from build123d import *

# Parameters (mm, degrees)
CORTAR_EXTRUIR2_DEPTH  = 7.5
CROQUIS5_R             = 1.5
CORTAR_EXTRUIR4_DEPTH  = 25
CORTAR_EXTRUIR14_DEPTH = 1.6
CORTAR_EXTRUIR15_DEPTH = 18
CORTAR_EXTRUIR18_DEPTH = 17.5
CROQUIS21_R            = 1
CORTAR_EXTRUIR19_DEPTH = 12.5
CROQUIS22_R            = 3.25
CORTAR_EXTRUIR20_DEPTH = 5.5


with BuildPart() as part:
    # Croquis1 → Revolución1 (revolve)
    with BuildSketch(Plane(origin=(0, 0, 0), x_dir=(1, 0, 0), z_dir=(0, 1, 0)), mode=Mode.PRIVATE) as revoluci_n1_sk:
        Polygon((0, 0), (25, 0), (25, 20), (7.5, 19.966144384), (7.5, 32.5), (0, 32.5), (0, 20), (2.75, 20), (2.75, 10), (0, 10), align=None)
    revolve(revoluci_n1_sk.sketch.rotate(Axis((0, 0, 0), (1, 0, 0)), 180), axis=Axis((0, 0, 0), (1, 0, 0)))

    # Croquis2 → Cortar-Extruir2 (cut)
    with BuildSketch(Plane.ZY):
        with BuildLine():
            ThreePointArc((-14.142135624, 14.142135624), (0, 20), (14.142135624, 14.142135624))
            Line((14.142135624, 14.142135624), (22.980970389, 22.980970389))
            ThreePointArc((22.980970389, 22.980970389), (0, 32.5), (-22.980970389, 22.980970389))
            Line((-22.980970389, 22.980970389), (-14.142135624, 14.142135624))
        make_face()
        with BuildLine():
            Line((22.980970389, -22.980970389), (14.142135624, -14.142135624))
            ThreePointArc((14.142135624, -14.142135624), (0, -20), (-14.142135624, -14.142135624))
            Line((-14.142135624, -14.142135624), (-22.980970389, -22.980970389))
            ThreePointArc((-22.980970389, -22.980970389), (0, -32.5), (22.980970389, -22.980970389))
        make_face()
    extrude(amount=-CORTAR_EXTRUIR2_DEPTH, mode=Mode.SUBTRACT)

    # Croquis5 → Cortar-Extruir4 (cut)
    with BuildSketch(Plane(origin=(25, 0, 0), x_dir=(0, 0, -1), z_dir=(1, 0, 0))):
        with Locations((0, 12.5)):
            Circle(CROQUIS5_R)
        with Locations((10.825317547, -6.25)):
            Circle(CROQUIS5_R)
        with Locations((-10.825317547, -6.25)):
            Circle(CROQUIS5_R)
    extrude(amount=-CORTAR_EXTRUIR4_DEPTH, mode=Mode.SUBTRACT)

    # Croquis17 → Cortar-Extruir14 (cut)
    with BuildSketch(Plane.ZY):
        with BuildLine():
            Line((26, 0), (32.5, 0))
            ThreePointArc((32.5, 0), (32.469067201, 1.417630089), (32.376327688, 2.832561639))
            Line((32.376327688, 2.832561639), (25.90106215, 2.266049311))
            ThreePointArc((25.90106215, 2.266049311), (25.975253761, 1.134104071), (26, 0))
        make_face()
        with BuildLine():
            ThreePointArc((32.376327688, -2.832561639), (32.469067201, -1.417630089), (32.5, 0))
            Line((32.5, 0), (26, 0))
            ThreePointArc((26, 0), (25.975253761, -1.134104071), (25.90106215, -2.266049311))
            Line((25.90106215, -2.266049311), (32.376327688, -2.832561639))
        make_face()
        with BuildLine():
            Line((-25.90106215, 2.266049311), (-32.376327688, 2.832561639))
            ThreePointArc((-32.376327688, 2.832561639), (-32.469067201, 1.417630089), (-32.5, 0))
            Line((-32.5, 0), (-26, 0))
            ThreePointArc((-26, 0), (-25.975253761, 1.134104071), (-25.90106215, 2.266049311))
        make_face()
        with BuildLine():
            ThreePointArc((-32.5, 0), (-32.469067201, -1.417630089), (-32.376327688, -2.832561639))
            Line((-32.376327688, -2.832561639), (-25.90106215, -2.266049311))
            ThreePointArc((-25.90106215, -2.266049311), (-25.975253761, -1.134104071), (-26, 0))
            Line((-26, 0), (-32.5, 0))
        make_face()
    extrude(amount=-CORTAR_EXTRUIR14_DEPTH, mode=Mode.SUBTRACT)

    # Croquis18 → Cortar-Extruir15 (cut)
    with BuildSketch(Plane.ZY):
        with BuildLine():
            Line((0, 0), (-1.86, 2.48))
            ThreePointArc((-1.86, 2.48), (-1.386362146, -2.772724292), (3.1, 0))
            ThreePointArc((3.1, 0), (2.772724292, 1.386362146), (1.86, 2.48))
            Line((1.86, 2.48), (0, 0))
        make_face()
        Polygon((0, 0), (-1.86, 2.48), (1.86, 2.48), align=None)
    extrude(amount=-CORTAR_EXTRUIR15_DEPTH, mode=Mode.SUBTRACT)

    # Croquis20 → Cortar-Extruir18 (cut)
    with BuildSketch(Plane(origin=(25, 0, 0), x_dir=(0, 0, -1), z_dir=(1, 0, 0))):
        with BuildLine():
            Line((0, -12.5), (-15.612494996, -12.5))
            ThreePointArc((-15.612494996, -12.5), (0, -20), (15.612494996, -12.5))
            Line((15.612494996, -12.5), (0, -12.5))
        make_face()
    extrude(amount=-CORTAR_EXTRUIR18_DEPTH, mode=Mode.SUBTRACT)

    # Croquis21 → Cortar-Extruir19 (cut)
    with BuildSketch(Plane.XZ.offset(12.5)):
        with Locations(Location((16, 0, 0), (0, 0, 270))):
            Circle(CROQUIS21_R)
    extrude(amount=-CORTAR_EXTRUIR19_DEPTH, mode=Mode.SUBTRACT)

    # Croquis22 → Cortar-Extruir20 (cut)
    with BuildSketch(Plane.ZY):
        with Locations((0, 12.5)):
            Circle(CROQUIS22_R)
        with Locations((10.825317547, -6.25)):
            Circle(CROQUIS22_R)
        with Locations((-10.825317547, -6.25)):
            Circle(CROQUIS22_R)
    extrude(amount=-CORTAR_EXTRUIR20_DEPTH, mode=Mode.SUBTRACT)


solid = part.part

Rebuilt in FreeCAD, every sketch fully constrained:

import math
import FreeCAD as App
import Part
import Sketcher
from FreeCAD import Vector
Q = App.Units.Quantity

doc = App.newDocument("Part")
params = doc.addObject("Spreadsheet::Sheet", "Params")
for row, (alias, value) in enumerate([
    ("sketch1_width", "25 mm"),
    ("sketch1_height", "20 mm"),
    ("sketch1_width2", "7.5 mm"),
    ("sketch1_height2", "12.5 mm"),
    ("sketch1_width3", "2.75 mm"),
    ("revolution_angle", "360 deg"),
    ("sketch2_radius", "20 mm"),
    ("sketch2_radius2", "32.5 mm"),
    ("pocket1_length", "7.5 mm"),
    ("sketch3_diameter", "3 mm"),
    ("pocket2_length", "25 mm"),
    ("sketch4_radius", "26 mm"),
    ("sketch4_radius2", "32.5 mm"),
    ("pocket3_length", "1.6 mm"),
    ("sketch5_radius", "3.1 mm"),
    ("sketch5_height", "3.72 mm"),
    ("pocket4_length", "18 mm"),
    ("sketch6_radius", "20 mm"),
    ("pocket5_length", "17.5 mm"),
    ("sketch7_diameter", "2 mm"),
    ("pocket6_length", "12.5 mm"),
    ("sketch8_diameter", "6.5 mm"),
    ("pocket7_length", "5.5 mm"),
], start=1):
    params.set(f"A{row}", alias)
    params.set(f"B{row}", "=" + value)
    params.setAlias(f"B{row}", alias)

body = doc.addObject("PartDesign::Body", "Body")

# Sketch on XZ plane
sketch1 = doc.addObject("Sketcher::SketchObject", "Sketch")
body.addObject(sketch1)
sketch1.AttachmentSupport = (doc.XZ_Plane, [""])
sketch1.MapMode = "FlatFace"
sketch1.addGeometry(Part.LineSegment(Vector(0, 0, 0), Vector(25, 0, 0)), False)
sketch1.addGeometry(Part.LineSegment(Vector(25, 0, 0), Vector(25, -20, 0)), False)
sketch1.addGeometry(Part.LineSegment(Vector(25, -20, 0), Vector(7.5, -19.966144, 0)), False)
sketch1.addGeometry(Part.LineSegment(Vector(7.5, -19.966144, 0), Vector(7.5, -32.5, 0)), False)
sketch1.addGeometry(Part.LineSegment(Vector(7.5, -32.5, 0), Vector(0, -32.5, 0)), False)
sketch1.addGeometry(Part.LineSegment(Vector(0, -32.5, 0), Vector(0, -20, 0)), False)
sketch1.addGeometry(Part.LineSegment(Vector(0, -20, 0), Vector(2.75, -20, 0)), False)
sketch1.addGeometry(Part.LineSegment(Vector(2.75, -20, 0), Vector(2.75, -10, 0)), False)
sketch1.addGeometry(Part.LineSegment(Vector(2.75, -10, 0), Vector(0, -10, 0)), False)
sketch1.addGeometry(Part.LineSegment(Vector(0, -10, 0), Vector(0, 0, 0)), False)
sketch1.addConstraint(Sketcher.Constraint("Coincident", 0, 2, 1, 1))
sketch1.addConstraint(Sketcher.Constraint("Coincident", 1, 2, 2, 1))
sketch1.addConstraint(Sketcher.Constraint("Coincident", 2, 2, 3, 1))
sketch1.addConstraint(Sketcher.Constraint("Coincident", 3, 2, 4, 1))
sketch1.addConstraint(Sketcher.Constraint("Coincident", 4, 2, 5, 1))
sketch1.addConstraint(Sketcher.Constraint("Coincident", 5, 2, 6, 1))
sketch1.addConstraint(Sketcher.Constraint("Coincident", 6, 2, 7, 1))
sketch1.addConstraint(Sketcher.Constraint("Coincident", 7, 2, 8, 1))
sketch1.addConstraint(Sketcher.Constraint("Coincident", 8, 2, 9, 1))
sketch1.addConstraint(Sketcher.Constraint("Coincident", 9, 2, 0, 1))
sketch1.addConstraint(Sketcher.Constraint("Horizontal", 0))
sketch1.addConstraint(Sketcher.Constraint("Vertical", 1))
sketch1.addConstraint(Sketcher.Constraint("Vertical", 3))
sketch1.addConstraint(Sketcher.Constraint("Horizontal", 4))
sketch1.addConstraint(Sketcher.Constraint("Vertical", 5))
sketch1.addConstraint(Sketcher.Constraint("Horizontal", 6))
sketch1.addConstraint(Sketcher.Constraint("Vertical", 7))
sketch1.addConstraint(Sketcher.Constraint("Horizontal", 8))
sketch1.addConstraint(Sketcher.Constraint("Vertical", 9))
sketch1.addConstraint(Sketcher.Constraint("Coincident", 9, 2, -1, 1))
sketch1.addConstraint(Sketcher.Constraint("PointOnObject", 4, 2, -2))
sketch1.addConstraint(Sketcher.Constraint("Horizontal", 1, 2, 5, 2))
sketch1.addConstraint(Sketcher.Constraint("Equal", 7, 9))
sketch1.addConstraint(Sketcher.Constraint("DistanceX", 0, 1, 0, 2, Q("25 mm")))
sketch1.addConstraint(Sketcher.Constraint("DistanceY", 1, 2, 1, 1, Q("20 mm")))
sketch1.addConstraint(Sketcher.Constraint("DistanceX", 4, 2, 4, 1, Q("7.5 mm")))
sketch1.addConstraint(Sketcher.Constraint("DistanceY", 5, 1, 5, 2, Q("12.5 mm")))
sketch1.addConstraint(Sketcher.Constraint("DistanceX", 6, 1, 6, 2, Q("2.75 mm")))
sketch1.addConstraint(Sketcher.Constraint("DistanceY", 3, 2, 3, 1, Q("12.533856 mm")))
sketch1.setExpression("Constraints[23]", "Params.sketch1_width")
sketch1.setExpression("Constraints[24]", "Params.sketch1_height")
sketch1.setExpression("Constraints[25]", "Params.sketch1_width2")
sketch1.setExpression("Constraints[26]", "Params.sketch1_height2")
sketch1.setExpression("Constraints[27]", "Params.sketch1_width3")
revolution = doc.addObject("PartDesign::Revolution", "Revolution")
body.addObject(revolution)
revolution.Profile = sketch1
revolution.ReferenceAxis = (sketch1, ["H_Axis"])
revolution.setExpression("Angle", "Params.revolution_angle")

# Sketch on YZ plane
sketch2 = doc.addObject("Sketcher::SketchObject", "Sketch001")
body.addObject(sketch2)
sketch2.AttachmentSupport = (doc.YZ_Plane, [""])
sketch2.MapMode = "FlatFace"
sketch2.addGeometry(Part.ArcOfCircle(Part.Circle(Vector(0, 0, 0), Vector(0, 0, 1), 20), math.radians(-45), math.radians(45)), False)
sketch2.addGeometry(Part.LineSegment(Vector(14.142136, 14.142136, 0), Vector(22.98097, 22.98097, 0)), False)
sketch2.addGeometry(Part.ArcOfCircle(Part.Circle(Vector(0, 0, 0), Vector(0, 0, 1), 32.5), math.radians(-45), math.radians(45)), False)
sketch2.addGeometry(Part.LineSegment(Vector(22.98097, -22.98097, 0), Vector(14.142136, -14.142136, 0)), False)
sketch2.addGeometry(Part.LineSegment(Vector(-22.98097, 22.98097, 0), Vector(-14.142136, 14.142136, 0)), False)
sketch2.addGeometry(Part.ArcOfCircle(Part.Circle(Vector(0, 0, 0), Vector(0, 0, 1), 20), math.radians(135), math.radians(225)), False)
sketch2.addGeometry(Part.LineSegment(Vector(-14.142136, -14.142136, 0), Vector(-22.98097, -22.98097, 0)), False)
sketch2.addGeometry(Part.ArcOfCircle(Part.Circle(Vector(0, 0, 0), Vector(0, 0, 1), 32.5), math.radians(135), math.radians(225)), False)
sketch2.addConstraint(Sketcher.Constraint("Coincident", 0, 2, 1, 1))
sketch2.addConstraint(Sketcher.Constraint("Coincident", 1, 2, 2, 2))
sketch2.addConstraint(Sketcher.Constraint("Coincident", 2, 1, 3, 1))
sketch2.addConstraint(Sketcher.Constraint("Coincident", 3, 2, 0, 1))
sketch2.addConstraint(Sketcher.Constraint("Coincident", 4, 2, 5, 1))
sketch2.addConstraint(Sketcher.Constraint("Coincident", 5, 2, 6, 1))
sketch2.addConstraint(Sketcher.Constraint("Coincident", 6, 2, 7, 2))
sketch2.addConstraint(Sketcher.Constraint("Coincident", 7, 1, 4, 1))
sketch2.addConstraint(Sketcher.Constraint("Coincident", 0, 3, -1, 1))
sketch2.addConstraint(Sketcher.Constraint("Coincident", 2, 3, -1, 1))
sketch2.addConstraint(Sketcher.Constraint("Coincident", 5, 3, -1, 1))
sketch2.addConstraint(Sketcher.Constraint("Coincident", 7, 3, -1, 1))
sketch2.addConstraint(Sketcher.Constraint("Equal", 0, 5))
sketch2.addConstraint(Sketcher.Constraint("Equal", 2, 7))
sketch2.addConstraint(Sketcher.Constraint("Perpendicular", 1, 3))
sketch2.addConstraint(Sketcher.Constraint("Parallel", 3, 4))
sketch2.addConstraint(Sketcher.Constraint("Perpendicular", 4, 6))
sketch2.addConstraint(Sketcher.Constraint("Horizontal", 0, 2, 4, 2))
sketch2.addConstraint(Sketcher.Constraint("Horizontal", 3, 2, 5, 2))
sketch2.addConstraint(Sketcher.Constraint("Horizontal", 2, 1, 6, 2))
sketch2.addConstraint(Sketcher.Constraint("Vertical", 1, 2, 2, 1))
sketch2.addConstraint(Sketcher.Constraint("Radius", 0, Q("20 mm")))
sketch2.addConstraint(Sketcher.Constraint("Radius", 2, Q("32.5 mm")))
sketch2.addConstraint(Sketcher.Constraint("DistanceX", -1, 1, 1, 2, Q("22.98097 mm")))
sketch2.setExpression("Constraints[21]", "Params.sketch2_radius")
sketch2.setExpression("Constraints[22]", "Params.sketch2_radius2")
pocket1 = doc.addObject("PartDesign::Pocket", "Pocket")
body.addObject(pocket1)
pocket1.Profile = sketch2
pocket1.setExpression("Length", "Params.pocket1_length")
pocket1.Reversed = True

# Sketch on YZ plane
sketch3 = doc.addObject("Sketcher::SketchObject", "Sketch002")
body.addObject(sketch3)
sketch3.AttachmentSupport = (doc.YZ_Plane, [""])
sketch3.MapMode = "FlatFace"
sketch3.AttachmentOffset = App.Placement(Vector(0, 0, 25), App.Rotation())
sketch3.addGeometry(Part.Circle(Vector(12.5, 0, 0), Vector(0, 0, 1), 1.5), False)
sketch3.addGeometry(Part.Circle(Vector(-6.25, -10.825318, 0), Vector(0, 0, 1), 1.5), False)
sketch3.addGeometry(Part.Circle(Vector(-6.25, 10.825318, 0), Vector(0, 0, 1), 1.5), False)
sketch3.addConstraint(Sketcher.Constraint("Equal", 0, 1))
sketch3.addConstraint(Sketcher.Constraint("Equal", 1, 2))
sketch3.addConstraint(Sketcher.Constraint("Symmetric", 1, 3, 2, 3, -1))
sketch3.addConstraint(Sketcher.Constraint("PointOnObject", 0, 3, -1))
sketch3.addConstraint(Sketcher.Constraint("Diameter", 0, Q("3 mm")))
sketch3.addConstraint(Sketcher.Constraint("DistanceX", -1, 1, 0, 3, Q("12.5 mm")))
sketch3.addConstraint(Sketcher.Constraint("DistanceX", 1, 3, -1, 1, Q("6.25 mm")))
sketch3.addConstraint(Sketcher.Constraint("DistanceY", 1, 3, -1, 1, Q("10.825318 mm")))
sketch3.setExpression("Constraints[4]", "Params.sketch3_diameter")
pocket2 = doc.addObject("PartDesign::Pocket", "Pocket001")
body.addObject(pocket2)
pocket2.Profile = sketch3
pocket2.setExpression("Length", "Params.pocket2_length")

# Sketch on YZ plane
sketch4 = doc.addObject("Sketcher::SketchObject", "Sketch003")
body.addObject(sketch4)
sketch4.AttachmentSupport = (doc.YZ_Plane, [""])
sketch4.MapMode = "FlatFace"
sketch4.addGeometry(Part.ArcOfCircle(Part.Circle(Vector(0, 0, 0), Vector(0, 0, 1), 32.5), math.radians(85), math.radians(90)), False)
sketch4.addGeometry(Part.LineSegment(Vector(2.832562, 32.376328, 0), Vector(2.266049, 25.901062, 0)), False)
sketch4.addGeometry(Part.ArcOfCircle(Part.Circle(Vector(0, 0, 0), Vector(0, 0, 1), 26), math.radians(85), math.radians(90)), False)
sketch4.addGeometry(Part.ArcOfCircle(Part.Circle(Vector(0, 0, 0), Vector(0, 0, 1), 26), math.radians(90), math.radians(95)), False)
sketch4.addGeometry(Part.LineSegment(Vector(-2.266049, 25.901062, 0), Vector(-2.832562, 32.376328, 0)), False)
sketch4.addGeometry(Part.ArcOfCircle(Part.Circle(Vector(0, 0, 0), Vector(0, 0, 1), 32.5), math.radians(90), math.radians(95)), False)
sketch4.addGeometry(Part.LineSegment(Vector(2.266049, -25.901062, 0), Vector(2.832562, -32.376328, 0)), False)
sketch4.addGeometry(Part.ArcOfCircle(Part.Circle(Vector(0, 0, 0), Vector(0, 0, 1), 32.5), math.radians(-90), math.radians(-85)), False)
sketch4.addGeometry(Part.ArcOfCircle(Part.Circle(Vector(0, 0, 0), Vector(0, 0, 1), 32.5), math.radians(-95), math.radians(-90)), False)
sketch4.addGeometry(Part.LineSegment(Vector(-2.832562, -32.376328, 0), Vector(-2.266049, -25.901062, 0)), False)
sketch4.addGeometry(Part.ArcOfCircle(Part.Circle(Vector(0, 0, 0), Vector(0, 0, 1), 26), math.radians(-95), math.radians(-90)), False)
sketch4.addGeometry(Part.ArcOfCircle(Part.Circle(Vector(0, 0, 0), Vector(0, 0, 1), 26), math.radians(-90), math.radians(-85)), False)
sketch4.addConstraint(Sketcher.Constraint("Coincident", 0, 1, 1, 1))
sketch4.addConstraint(Sketcher.Constraint("Coincident", 1, 2, 2, 1))
sketch4.addConstraint(Sketcher.Constraint("Tangent", 2, 2, 3, 1))
sketch4.addConstraint(Sketcher.Constraint("Coincident", 3, 2, 4, 1))
sketch4.addConstraint(Sketcher.Constraint("Coincident", 4, 2, 5, 2))
sketch4.addConstraint(Sketcher.Constraint("Tangent", 5, 1, 0, 2))
sketch4.addConstraint(Sketcher.Constraint("Coincident", 6, 2, 7, 2))
sketch4.addConstraint(Sketcher.Constraint("Tangent", 7, 1, 8, 2))
sketch4.addConstraint(Sketcher.Constraint("Coincident", 8, 1, 9, 1))
sketch4.addConstraint(Sketcher.Constraint("Coincident", 9, 2, 10, 1))
sketch4.addConstraint(Sketcher.Constraint("Tangent", 10, 2, 11, 1))
sketch4.addConstraint(Sketcher.Constraint("Coincident", 11, 2, 6, 1))
sketch4.addConstraint(Sketcher.Constraint("Coincident", 0, 3, -1, 1))
sketch4.addConstraint(Sketcher.Constraint("Coincident", 2, 3, -1, 1))
sketch4.addConstraint(Sketcher.Constraint("Coincident", 7, 3, -1, 1))
sketch4.addConstraint(Sketcher.Constraint("Coincident", 10, 3, -1, 1))
sketch4.addConstraint(Sketcher.Constraint("Equal", 2, 3))
sketch4.addConstraint(Sketcher.Constraint("Equal", 0, 5))
sketch4.addConstraint(Sketcher.Constraint("Equal", 5, 7))
sketch4.addConstraint(Sketcher.Constraint("Equal", 7, 8))
sketch4.addConstraint(Sketcher.Constraint("Equal", 3, 10))
sketch4.addConstraint(Sketcher.Constraint("Equal", 10, 11))
sketch4.addConstraint(Sketcher.Constraint("PointOnObject", 2, 2, -2))
sketch4.addConstraint(Sketcher.Constraint("PointOnObject", 5, 1, -2))
sketch4.addConstraint(Sketcher.Constraint("PointOnObject", 7, 1, -2))
sketch4.addConstraint(Sketcher.Constraint("PointOnObject", 10, 2, -2))
sketch4.addConstraint(Sketcher.Constraint("Parallel", 4, 6))
sketch4.addConstraint(Sketcher.Constraint("Parallel", 1, 9))
sketch4.addConstraint(Sketcher.Constraint("Horizontal", 1, 2, 3, 2))
sketch4.addConstraint(Sketcher.Constraint("Horizontal", 0, 1, 4, 2))
sketch4.addConstraint(Sketcher.Constraint("Horizontal", 6, 2, 8, 1))
sketch4.addConstraint(Sketcher.Constraint("Vertical", 0, 1, 6, 2))
sketch4.addConstraint(Sketcher.Constraint("Radius", 2, Q("26 mm")))
sketch4.addConstraint(Sketcher.Constraint("Radius", 0, Q("32.5 mm")))
sketch4.addConstraint(Sketcher.Constraint("Angle", 1, Q("-95 deg")))
sketch4.addConstraint(Sketcher.Constraint("DistanceX", 3, 2, 1, 2, Q("4.532099 mm")))
sketch4.setExpression("Constraints[32]", "Params.sketch4_radius")
sketch4.setExpression("Constraints[33]", "Params.sketch4_radius2")
pocket3 = doc.addObject("PartDesign::Pocket", "Pocket002")
body.addObject(pocket3)
pocket3.Profile = sketch4
pocket3.setExpression("Length", "Params.pocket3_length")
pocket3.Reversed = True

# Sketch on YZ plane
sketch5 = doc.addObject("Sketcher::SketchObject", "Sketch004")
body.addObject(sketch5)
sketch5.AttachmentSupport = (doc.YZ_Plane, [""])
sketch5.MapMode = "FlatFace"
sketch5.addGeometry(Part.ArcOfCircle(Part.Circle(Vector(0, 0, 0), Vector(0, 0, 1), 3.1), math.radians(90), math.radians(323.130102)), False)
sketch5.addGeometry(Part.ArcOfCircle(Part.Circle(Vector(0, 0, 0), Vector(0, 0, 1), 3.1), math.radians(36.869898), math.radians(90)), False)
sketch5.addGeometry(Part.LineSegment(Vector(2.48, 1.86, 0), Vector(2.48, -1.86, 0)), False)
sketch5.addConstraint(Sketcher.Constraint("Tangent", 0, 1, 1, 2))
sketch5.addConstraint(Sketcher.Constraint("Coincident", 1, 1, 2, 1))
sketch5.addConstraint(Sketcher.Constraint("Coincident", 2, 2, 0, 2))
sketch5.addConstraint(Sketcher.Constraint("Vertical", 2))
sketch5.addConstraint(Sketcher.Constraint("Coincident", 0, 3, -1, 1))
sketch5.addConstraint(Sketcher.Constraint("Equal", 0, 1))
sketch5.addConstraint(Sketcher.Constraint("PointOnObject", 0, 1, -2))
sketch5.addConstraint(Sketcher.Constraint("Radius", 0, Q("3.1 mm")))
sketch5.addConstraint(Sketcher.Constraint("DistanceY", 2, 2, 2, 1, Q("3.72 mm")))
sketch5.setExpression("Constraints[7]", "Params.sketch5_radius")
sketch5.setExpression("Constraints[8]", "Params.sketch5_height")
pocket4 = doc.addObject("PartDesign::Pocket", "Pocket003")
body.addObject(pocket4)
pocket4.Profile = sketch5
pocket4.setExpression("Length", "Params.pocket4_length")
pocket4.Reversed = True

# Sketch on YZ plane
sketch6 = doc.addObject("Sketcher::SketchObject", "Sketch005")
body.addObject(sketch6)
sketch6.AttachmentSupport = (doc.YZ_Plane, [""])
sketch6.MapMode = "FlatFace"
sketch6.AttachmentOffset = App.Placement(Vector(0, 0, 25), App.Rotation())
sketch6.addGeometry(Part.ArcOfCircle(Part.Circle(Vector(0, 0, 0), Vector(0, 0, 1), 20), math.radians(128.682187), math.radians(231.317813)), False)
sketch6.addGeometry(Part.LineSegment(Vector(-12.5, -15.612495, 0), Vector(-12.5, 15.612495, 0)), False)
sketch6.addConstraint(Sketcher.Constraint("Coincident", 0, 1, 1, 2))
sketch6.addConstraint(Sketcher.Constraint("Coincident", 1, 1, 0, 2))
sketch6.addConstraint(Sketcher.Constraint("Vertical", 1))
sketch6.addConstraint(Sketcher.Constraint("Coincident", 0, 3, -1, 1))
sketch6.addConstraint(Sketcher.Constraint("Radius", 0, Q("20 mm")))
sketch6.addConstraint(Sketcher.Constraint("DistanceX", 0, 1, -1, 1, Q("12.5 mm")))
sketch6.setExpression("Constraints[4]", "Params.sketch6_radius")
pocket5 = doc.addObject("PartDesign::Pocket", "Pocket004")
body.addObject(pocket5)
pocket5.Profile = sketch6
pocket5.setExpression("Length", "Params.pocket5_length")

# Sketch on XZ plane
sketch7 = doc.addObject("Sketcher::SketchObject", "Sketch006")
body.addObject(sketch7)
sketch7.AttachmentSupport = (doc.XZ_Plane, [""])
sketch7.MapMode = "FlatFace"
sketch7.AttachmentOffset = App.Placement(Vector(0, 0, 12.5), App.Rotation())
sketch7.addGeometry(Part.Circle(Vector(16, 0, 0), Vector(0, 0, 1), 1), False)
sketch7.addConstraint(Sketcher.Constraint("PointOnObject", 0, 3, -1))
sketch7.addConstraint(Sketcher.Constraint("Diameter", 0, Q("2 mm")))
sketch7.addConstraint(Sketcher.Constraint("DistanceX", -1, 1, 0, 3, Q("16 mm")))
sketch7.setExpression("Constraints[1]", "Params.sketch7_diameter")
pocket6 = doc.addObject("PartDesign::Pocket", "Pocket005")
body.addObject(pocket6)
pocket6.Profile = sketch7
pocket6.setExpression("Length", "Params.pocket6_length")

# Sketch on YZ plane
sketch8 = doc.addObject("Sketcher::SketchObject", "Sketch007")
body.addObject(sketch8)
sketch8.AttachmentSupport = (doc.YZ_Plane, [""])
sketch8.MapMode = "FlatFace"
sketch8.addGeometry(Part.Circle(Vector(12.5, 0, 0), Vector(0, 0, 1), 3.25), False)
sketch8.addGeometry(Part.Circle(Vector(-6.25, 10.825318, 0), Vector(0, 0, 1), 3.25), False)
sketch8.addGeometry(Part.Circle(Vector(-6.25, -10.825318, 0), Vector(0, 0, 1), 3.25), False)
sketch8.addConstraint(Sketcher.Constraint("Equal", 0, 1))
sketch8.addConstraint(Sketcher.Constraint("Equal", 1, 2))
sketch8.addConstraint(Sketcher.Constraint("Symmetric", 1, 3, 2, 3, -1))
sketch8.addConstraint(Sketcher.Constraint("PointOnObject", 0, 3, -1))
sketch8.addConstraint(Sketcher.Constraint("Diameter", 0, Q("6.5 mm")))
sketch8.addConstraint(Sketcher.Constraint("DistanceX", -1, 1, 0, 3, Q("12.5 mm")))
sketch8.addConstraint(Sketcher.Constraint("DistanceX", 1, 3, -1, 1, Q("6.25 mm")))
sketch8.addConstraint(Sketcher.Constraint("DistanceY", -1, 1, 1, 3, Q("10.825318 mm")))
sketch8.setExpression("Constraints[4]", "Params.sketch8_diameter")
pocket7 = doc.addObject("PartDesign::Pocket", "Pocket006")
body.addObject(pocket7)
pocket7.Profile = sketch8
pocket7.setExpression("Length", "Params.pocket7_length")
pocket7.Reversed = True

doc.recompute()
